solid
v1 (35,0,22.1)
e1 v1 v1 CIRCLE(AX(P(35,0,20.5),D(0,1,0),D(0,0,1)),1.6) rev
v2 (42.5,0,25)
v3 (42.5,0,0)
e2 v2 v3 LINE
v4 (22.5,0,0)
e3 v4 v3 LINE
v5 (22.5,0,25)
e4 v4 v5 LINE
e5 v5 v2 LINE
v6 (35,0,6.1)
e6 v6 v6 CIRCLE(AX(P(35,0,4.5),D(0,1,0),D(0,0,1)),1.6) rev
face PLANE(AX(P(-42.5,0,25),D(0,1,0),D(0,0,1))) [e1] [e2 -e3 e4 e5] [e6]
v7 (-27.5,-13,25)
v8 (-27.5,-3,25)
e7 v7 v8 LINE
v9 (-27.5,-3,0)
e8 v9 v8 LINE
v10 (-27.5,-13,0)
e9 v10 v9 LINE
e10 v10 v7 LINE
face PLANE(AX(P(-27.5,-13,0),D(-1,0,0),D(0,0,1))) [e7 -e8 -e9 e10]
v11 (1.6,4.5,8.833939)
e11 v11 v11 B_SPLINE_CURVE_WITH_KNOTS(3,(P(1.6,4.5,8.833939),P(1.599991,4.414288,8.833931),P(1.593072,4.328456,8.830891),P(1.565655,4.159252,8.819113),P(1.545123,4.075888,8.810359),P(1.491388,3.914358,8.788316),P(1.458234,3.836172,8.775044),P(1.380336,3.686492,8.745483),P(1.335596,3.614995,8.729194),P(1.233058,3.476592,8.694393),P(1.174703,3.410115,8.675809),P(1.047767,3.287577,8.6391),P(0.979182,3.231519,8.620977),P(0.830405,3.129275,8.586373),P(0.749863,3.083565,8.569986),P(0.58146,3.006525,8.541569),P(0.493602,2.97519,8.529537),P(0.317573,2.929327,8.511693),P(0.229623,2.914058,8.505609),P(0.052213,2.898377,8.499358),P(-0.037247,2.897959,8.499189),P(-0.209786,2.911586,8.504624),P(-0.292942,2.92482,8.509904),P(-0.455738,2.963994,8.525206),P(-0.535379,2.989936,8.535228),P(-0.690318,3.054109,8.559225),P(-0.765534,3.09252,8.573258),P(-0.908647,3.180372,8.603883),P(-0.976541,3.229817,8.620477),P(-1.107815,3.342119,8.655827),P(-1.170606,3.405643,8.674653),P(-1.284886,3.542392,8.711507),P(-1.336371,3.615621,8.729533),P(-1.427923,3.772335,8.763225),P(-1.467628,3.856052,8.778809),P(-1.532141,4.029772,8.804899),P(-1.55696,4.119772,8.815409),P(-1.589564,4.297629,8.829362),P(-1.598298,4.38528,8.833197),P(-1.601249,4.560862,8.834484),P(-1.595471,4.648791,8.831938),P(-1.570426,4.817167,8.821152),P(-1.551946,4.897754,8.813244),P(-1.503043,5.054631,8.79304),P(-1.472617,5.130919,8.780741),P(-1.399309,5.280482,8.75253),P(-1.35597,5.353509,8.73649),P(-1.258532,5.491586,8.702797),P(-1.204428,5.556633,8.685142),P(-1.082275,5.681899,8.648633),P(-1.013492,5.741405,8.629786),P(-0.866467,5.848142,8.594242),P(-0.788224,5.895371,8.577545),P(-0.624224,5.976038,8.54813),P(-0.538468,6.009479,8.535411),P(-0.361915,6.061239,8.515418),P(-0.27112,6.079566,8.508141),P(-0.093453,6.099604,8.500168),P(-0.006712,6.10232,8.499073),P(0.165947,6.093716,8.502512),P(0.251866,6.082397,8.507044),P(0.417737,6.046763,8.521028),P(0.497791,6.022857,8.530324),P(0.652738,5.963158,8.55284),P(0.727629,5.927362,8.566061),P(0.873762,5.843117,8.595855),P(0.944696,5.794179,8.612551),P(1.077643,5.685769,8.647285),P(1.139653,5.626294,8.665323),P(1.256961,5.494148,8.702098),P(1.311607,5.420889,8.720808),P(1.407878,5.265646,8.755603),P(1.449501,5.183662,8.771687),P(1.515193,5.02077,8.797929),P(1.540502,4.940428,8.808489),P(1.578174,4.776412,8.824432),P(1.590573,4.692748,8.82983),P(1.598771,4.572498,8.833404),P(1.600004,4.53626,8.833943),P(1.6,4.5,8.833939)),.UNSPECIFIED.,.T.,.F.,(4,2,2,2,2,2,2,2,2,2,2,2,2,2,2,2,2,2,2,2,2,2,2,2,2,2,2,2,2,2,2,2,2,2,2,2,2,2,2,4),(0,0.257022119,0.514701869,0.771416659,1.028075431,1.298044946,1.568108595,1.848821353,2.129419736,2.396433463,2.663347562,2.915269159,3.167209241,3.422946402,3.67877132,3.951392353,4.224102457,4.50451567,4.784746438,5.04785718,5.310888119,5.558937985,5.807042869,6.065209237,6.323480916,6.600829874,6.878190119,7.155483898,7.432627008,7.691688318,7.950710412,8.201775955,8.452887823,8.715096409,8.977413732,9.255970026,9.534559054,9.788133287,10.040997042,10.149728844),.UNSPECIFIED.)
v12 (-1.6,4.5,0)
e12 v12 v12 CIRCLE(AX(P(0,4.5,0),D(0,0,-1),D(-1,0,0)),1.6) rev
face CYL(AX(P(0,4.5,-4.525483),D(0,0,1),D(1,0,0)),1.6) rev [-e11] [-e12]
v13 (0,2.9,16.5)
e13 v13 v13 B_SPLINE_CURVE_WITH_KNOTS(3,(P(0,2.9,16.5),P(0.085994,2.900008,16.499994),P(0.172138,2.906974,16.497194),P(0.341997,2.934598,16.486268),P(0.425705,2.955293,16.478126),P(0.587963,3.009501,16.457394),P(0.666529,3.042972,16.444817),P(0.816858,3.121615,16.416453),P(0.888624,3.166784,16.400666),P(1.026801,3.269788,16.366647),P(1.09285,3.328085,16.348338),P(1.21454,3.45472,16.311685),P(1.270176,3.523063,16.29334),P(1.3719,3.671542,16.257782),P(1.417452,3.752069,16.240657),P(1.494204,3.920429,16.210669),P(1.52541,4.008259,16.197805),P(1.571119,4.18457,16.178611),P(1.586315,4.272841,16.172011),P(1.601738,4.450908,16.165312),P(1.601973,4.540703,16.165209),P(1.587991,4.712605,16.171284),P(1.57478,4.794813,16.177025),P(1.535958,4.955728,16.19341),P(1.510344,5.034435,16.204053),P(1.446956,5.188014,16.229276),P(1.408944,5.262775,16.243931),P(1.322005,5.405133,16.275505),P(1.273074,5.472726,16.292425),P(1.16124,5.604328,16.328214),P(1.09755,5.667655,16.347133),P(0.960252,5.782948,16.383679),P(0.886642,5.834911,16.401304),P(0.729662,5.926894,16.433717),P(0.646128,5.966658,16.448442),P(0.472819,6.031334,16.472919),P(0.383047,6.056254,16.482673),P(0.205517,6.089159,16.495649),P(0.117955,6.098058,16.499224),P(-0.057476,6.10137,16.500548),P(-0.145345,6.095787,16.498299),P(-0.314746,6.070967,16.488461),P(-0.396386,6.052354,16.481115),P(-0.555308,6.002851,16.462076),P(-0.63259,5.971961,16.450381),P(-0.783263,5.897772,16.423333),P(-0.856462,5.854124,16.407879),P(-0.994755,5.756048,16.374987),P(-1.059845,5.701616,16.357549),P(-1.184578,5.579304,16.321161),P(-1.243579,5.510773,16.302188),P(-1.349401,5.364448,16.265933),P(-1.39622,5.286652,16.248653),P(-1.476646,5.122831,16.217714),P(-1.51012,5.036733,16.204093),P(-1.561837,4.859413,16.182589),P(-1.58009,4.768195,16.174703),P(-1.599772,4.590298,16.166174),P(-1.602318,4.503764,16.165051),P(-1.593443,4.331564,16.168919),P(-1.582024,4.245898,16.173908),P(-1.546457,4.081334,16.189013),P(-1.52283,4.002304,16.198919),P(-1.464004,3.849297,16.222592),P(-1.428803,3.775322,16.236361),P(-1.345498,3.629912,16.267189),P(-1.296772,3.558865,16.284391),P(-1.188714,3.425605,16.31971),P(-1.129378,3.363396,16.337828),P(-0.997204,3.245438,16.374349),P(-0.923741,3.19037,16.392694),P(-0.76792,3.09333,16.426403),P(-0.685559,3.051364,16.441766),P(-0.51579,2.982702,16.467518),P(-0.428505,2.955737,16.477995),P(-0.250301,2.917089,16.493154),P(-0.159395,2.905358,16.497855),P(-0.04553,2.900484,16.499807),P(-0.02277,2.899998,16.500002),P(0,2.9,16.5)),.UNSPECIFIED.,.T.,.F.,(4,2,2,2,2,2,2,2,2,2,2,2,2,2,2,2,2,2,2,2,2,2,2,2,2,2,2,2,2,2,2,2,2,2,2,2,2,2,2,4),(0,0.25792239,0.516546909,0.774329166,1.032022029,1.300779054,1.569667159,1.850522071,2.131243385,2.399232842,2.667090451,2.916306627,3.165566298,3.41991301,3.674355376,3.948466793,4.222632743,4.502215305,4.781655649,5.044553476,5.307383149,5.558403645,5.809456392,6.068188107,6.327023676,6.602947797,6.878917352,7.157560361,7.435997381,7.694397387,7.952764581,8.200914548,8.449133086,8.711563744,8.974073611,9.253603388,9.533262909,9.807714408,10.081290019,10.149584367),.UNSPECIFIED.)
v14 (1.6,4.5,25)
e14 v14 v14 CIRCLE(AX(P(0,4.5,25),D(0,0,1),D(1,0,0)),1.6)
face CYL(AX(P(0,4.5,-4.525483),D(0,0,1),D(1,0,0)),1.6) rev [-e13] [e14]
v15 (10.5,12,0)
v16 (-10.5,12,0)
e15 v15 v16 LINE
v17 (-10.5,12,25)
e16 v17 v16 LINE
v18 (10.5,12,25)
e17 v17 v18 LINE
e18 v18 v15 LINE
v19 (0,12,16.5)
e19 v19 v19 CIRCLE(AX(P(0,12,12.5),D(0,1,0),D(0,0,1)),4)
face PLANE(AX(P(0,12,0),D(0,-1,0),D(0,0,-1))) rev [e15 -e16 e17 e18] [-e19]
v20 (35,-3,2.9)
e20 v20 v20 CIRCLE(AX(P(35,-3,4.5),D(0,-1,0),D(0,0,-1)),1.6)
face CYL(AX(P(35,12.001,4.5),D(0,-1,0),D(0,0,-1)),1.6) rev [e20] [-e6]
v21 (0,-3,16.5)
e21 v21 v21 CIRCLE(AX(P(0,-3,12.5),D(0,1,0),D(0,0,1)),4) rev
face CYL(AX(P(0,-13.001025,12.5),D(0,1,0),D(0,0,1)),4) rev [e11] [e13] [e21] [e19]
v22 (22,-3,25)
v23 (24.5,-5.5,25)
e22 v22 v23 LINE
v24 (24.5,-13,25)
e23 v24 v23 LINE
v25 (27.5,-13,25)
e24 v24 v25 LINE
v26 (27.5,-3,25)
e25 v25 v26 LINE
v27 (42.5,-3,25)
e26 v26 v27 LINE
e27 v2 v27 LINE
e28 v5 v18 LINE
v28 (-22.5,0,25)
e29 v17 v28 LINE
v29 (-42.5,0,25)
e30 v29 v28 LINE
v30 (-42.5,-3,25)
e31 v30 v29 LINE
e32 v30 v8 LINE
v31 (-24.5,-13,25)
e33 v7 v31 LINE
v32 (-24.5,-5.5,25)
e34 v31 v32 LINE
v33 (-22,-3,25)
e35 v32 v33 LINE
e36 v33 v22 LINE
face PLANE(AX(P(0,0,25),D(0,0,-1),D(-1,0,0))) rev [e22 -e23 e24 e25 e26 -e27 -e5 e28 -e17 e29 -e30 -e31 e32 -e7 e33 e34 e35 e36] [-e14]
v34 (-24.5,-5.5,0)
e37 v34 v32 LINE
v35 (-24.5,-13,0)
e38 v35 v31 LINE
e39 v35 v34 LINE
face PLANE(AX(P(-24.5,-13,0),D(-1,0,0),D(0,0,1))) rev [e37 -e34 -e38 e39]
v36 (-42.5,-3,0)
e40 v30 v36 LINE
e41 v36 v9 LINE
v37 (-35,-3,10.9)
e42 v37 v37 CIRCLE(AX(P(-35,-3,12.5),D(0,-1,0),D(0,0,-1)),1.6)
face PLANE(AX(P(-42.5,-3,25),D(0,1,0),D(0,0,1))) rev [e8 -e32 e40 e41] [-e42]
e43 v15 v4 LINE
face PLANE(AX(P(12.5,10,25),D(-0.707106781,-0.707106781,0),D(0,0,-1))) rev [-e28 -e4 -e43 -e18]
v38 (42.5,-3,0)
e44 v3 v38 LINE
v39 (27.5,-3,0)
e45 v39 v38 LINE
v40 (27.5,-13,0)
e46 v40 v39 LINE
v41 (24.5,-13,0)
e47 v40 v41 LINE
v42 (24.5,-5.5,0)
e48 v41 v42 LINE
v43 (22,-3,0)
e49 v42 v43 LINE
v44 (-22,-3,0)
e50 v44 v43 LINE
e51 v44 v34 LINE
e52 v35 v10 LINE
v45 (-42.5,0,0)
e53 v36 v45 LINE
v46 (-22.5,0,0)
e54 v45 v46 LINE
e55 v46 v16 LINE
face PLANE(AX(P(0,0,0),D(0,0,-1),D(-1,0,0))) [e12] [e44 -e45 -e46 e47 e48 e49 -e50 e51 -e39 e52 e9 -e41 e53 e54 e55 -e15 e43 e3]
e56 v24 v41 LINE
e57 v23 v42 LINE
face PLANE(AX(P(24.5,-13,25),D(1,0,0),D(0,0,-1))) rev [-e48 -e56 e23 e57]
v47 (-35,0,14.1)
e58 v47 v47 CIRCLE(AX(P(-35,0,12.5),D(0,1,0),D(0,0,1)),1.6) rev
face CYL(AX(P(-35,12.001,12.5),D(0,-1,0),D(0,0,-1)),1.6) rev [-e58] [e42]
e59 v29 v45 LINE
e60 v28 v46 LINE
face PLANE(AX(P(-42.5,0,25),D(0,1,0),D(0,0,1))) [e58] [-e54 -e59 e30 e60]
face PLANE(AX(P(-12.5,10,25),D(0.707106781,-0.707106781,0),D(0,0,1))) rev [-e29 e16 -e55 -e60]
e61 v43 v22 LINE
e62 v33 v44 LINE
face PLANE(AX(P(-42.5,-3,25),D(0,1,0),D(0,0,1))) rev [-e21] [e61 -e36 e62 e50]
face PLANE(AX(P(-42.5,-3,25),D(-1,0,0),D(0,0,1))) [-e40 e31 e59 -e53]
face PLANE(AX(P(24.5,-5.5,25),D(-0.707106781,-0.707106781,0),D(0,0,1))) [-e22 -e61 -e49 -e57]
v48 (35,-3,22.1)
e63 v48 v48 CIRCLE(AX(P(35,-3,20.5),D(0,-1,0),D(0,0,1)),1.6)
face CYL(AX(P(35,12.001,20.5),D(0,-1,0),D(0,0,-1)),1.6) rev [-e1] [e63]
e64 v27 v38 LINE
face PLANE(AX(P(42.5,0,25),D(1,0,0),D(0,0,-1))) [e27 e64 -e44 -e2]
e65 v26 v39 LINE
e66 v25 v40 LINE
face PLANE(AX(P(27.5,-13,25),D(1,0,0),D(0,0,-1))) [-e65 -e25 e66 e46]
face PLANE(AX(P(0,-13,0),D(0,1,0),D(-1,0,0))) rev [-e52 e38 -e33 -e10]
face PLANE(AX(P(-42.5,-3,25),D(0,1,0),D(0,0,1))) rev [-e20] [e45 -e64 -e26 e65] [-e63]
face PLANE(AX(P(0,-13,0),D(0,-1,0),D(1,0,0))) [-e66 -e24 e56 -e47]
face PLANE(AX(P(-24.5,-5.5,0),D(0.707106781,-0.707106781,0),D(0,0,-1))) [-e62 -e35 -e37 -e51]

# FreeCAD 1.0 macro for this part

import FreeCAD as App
import Part
import Sketcher

V = App.Vector


def edges_at(feature, points):
    """Names of the edges that pass closest to the given points."""
    edges = feature.Shape.Edges
    near = lambda p: min(range(len(edges)), key=lambda i: edges[i].distToShape(Part.Vertex(*p))[0])
    return sorted({f"Edge{near(p) + 1}" for p in points})


def add_polygon(sketch, points):
    """Adds a closed chain of lines whose ends are joined by coincident constraints."""
    first, n = sketch.GeometryCount, len(points)
    for a, b in zip(points, points[1:] + points[:1]):
        sketch.addGeometry(Part.LineSegment(App.Vector(*a, 0), App.Vector(*b, 0)), False)
    for i in range(n):
        sketch.addConstraint(Sketcher.Constraint("Coincident", first + i, 2, first + (i + 1) % n, 1))

doc = App.newDocument("Part")
body = doc.addObject("PartDesign::Body", "Body")

sketch1 = body.newObject("Sketcher::SketchObject", "Sketch")
sketch1.AttachmentSupport = (doc.getObject("XY_Plane"), [""])
sketch1.MapMode = "FlatFace"
add_polygon(sketch1, [(-42.5, 0), (-42.5, -3), (42.5, -3), (42.5, 0)])
sketch1.addConstraint(Sketcher.Constraint("Vertical", 0))
sketch1.addConstraint(Sketcher.Constraint("Horizontal", 1))
sketch1.addConstraint(Sketcher.Constraint("Vertical", 2))
sketch1.addConstraint(Sketcher.Constraint("Horizontal", 3))
sketch1.addConstraint(Sketcher.Constraint("Symmetric", 2, 2, 3, 2, -1, 1))
sketch1.addConstraint(Sketcher.Constraint("DistanceX", 1, 1, 1, 2, 85.0))
sketch1.addConstraint(Sketcher.Constraint("DistanceY", 0, 2, 0, 1, 3.0))
pad1 = body.newObject("PartDesign::Pad", "Pad")
pad1.Profile = sketch1
pad1.Length = 25

sketch2 = body.newObject("Sketcher::SketchObject", "Sketch001")
sketch2.AttachmentSupport = (doc.getObject("XZ_Plane"), [""])
sketch2.MapMode = "FlatFace"
sketch2.AttachmentOffset = App.Placement(V(0, 0, 3), App.Rotation())
add_polygon(sketch2, [(-27.5, 25), (-27.5, 0), (-24.5, 0), (-24.5, 25)])
sketch2.addConstraint(Sketcher.Constraint("Vertical", 0))
sketch2.addConstraint(Sketcher.Constraint("Horizontal", 1))
sketch2.addConstraint(Sketcher.Constraint("Vertical", 2))
sketch2.addConstraint(Sketcher.Constraint("Horizontal", 3))
sketch2.addConstraint(Sketcher.Constraint("PointOnObject", 0, 2, -1))
sketch2.addConstraint(Sketcher.Constraint("DistanceX", 1, 1, 1, 2, 3.0))
sketch2.addConstraint(Sketcher.Constraint("DistanceY", 0, 2, 0, 1, 25.0))
sketch2.addConstraint(Sketcher.Constraint("DistanceX", 0, 2, -1, 1, 27.5))
pad2 = body.newObject("PartDesign::Pad", "Pad001")
pad2.Profile = sketch2
pad2.Length = 10

sketch3 = body.newObject("Sketcher::SketchObject", "Sketch002")
sketch3.AttachmentSupport = (doc.getObject("XZ_Plane"), [""])
sketch3.MapMode = "FlatFace"
sketch3.AttachmentOffset = App.Placement(V(0, 0, 3), App.Rotation())
add_polygon(sketch3, [(24.5, 25), (24.5, 0), (27.5, 0), (27.5, 25)])
sketch3.addConstraint(Sketcher.Constraint("Vertical", 0))
sketch3.addConstraint(Sketcher.Constraint("Horizontal", 1))
sketch3.addConstraint(Sketcher.Constraint("Vertical", 2))
sketch3.addConstraint(Sketcher.Constraint("Horizontal", 3))
sketch3.addConstraint(Sketcher.Constraint("PointOnObject", 0, 2, -1))
sketch3.addConstraint(Sketcher.Constraint("DistanceX", 1, 1, 1, 2, 3.0))
sketch3.addConstraint(Sketcher.Constraint("DistanceY", 0, 2, 0, 1, 25.0))
sketch3.addConstraint(Sketcher.Constraint("DistanceX", -1, 1, 0, 2, 24.5))
pad3 = body.newObject("PartDesign::Pad", "Pad002")
pad3.Profile = sketch3
pad3.Length = 10

sketch4 = body.newObject("Sketcher::SketchObject", "Sketch003")
sketch4.AttachmentSupport = (doc.getObject("XZ_Plane"), [""])
sketch4.MapMode = "FlatFace"
add_polygon(sketch4, [(-12.5, 0), (-12.5, 25), (12.5, 25), (12.5, 0)])
sketch4.addConstraint(Sketcher.Constraint("Vertical", 0))
sketch4.addConstraint(Sketcher.Constraint("Horizontal", 1))
sketch4.addConstraint(Sketcher.Constraint("Vertical", 2))
sketch4.addConstraint(Sketcher.Constraint("Horizontal", 3))
sketch4.addConstraint(Sketcher.Constraint("Symmetric", 2, 2, 3, 2, -1, 1))
sketch4.addConstraint(Sketcher.Constraint("Equal", 3, 0))
sketch4.addConstraint(Sketcher.Constraint("DistanceX", 1, 1, 1, 2, 25.0))
pad4 = body.newObject("PartDesign::Pad", "Pad003")
pad4.Profile = sketch4
pad4.Length = 12
pad4.Reversed = True

sketch5 = body.newObject("Sketcher::SketchObject", "Sketch004")
sketch5.AttachmentSupport = (doc.getObject("XZ_Plane"), [""])
sketch5.MapMode = "FlatFace"
sketch5.AttachmentOffset = App.Placement(V(0, 0, -12), App.Rotation())
sketch5.addGeometry(Part.Circle(V(0, 12.5, 0), V(0, 0, 1), 4), False)
sketch5.addConstraint(Sketcher.Constraint("PointOnObject", 0, 3, -2))
sketch5.addConstraint(Sketcher.Constraint("Diameter", 0, 8.0))
sketch5.addConstraint(Sketcher.Constraint("DistanceY", -1, 1, 0, 3, 12.5))
pocket1 = body.newObject("PartDesign::Pocket", "Pocket")
pocket1.Profile = sketch5
pocket1.Type = "UpToFirst"
pocket1.Reversed = True
doc.recompute()

chamfer = body.newObject("PartDesign::Chamfer", "Chamfer")
chamfer.Base = (pocket1, edges_at(pocket1, [(12.5, 0, 12.5)]))
chamfer.Size = 10
doc.recompute()

chamfer2 = body.newObject("PartDesign::Chamfer", "Chamfer001")
chamfer2.Base = (chamfer, edges_at(chamfer, [(-12.5, 0, 12.5)]))
chamfer2.Size = 10

sketch6 = body.newObject("Sketcher::SketchObject", "Sketch005")
sketch6.AttachmentSupport = (doc.getObject("XY_Plane"), [""])
sketch6.MapMode = "FlatFace"
add_polygon(sketch6, [(12.5, 10), (10.5, 12), (12.5, 12)])
sketch6.addConstraint(Sketcher.Constraint("Horizontal", 1))
sketch6.addConstraint(Sketcher.Constraint("Vertical", 2))
sketch6.addConstraint(Sketcher.Constraint("Equal", 1, 2))
sketch6.addConstraint(Sketcher.Constraint("DistanceX", 1, 1, 1, 2, 2.0))
sketch6.addConstraint(Sketcher.Constraint("DistanceY", -1, 1, 0, 2, 12.0))
sketch6.addConstraint(Sketcher.Constraint("DistanceX", -1, 1, 0, 2, 10.5))
pocket2 = body.newObject("PartDesign::Pocket", "Pocket001")
pocket2.Profile = sketch6
pocket2.Type = "UpToFirst"
pocket2.Reversed = True

sketch7 = body.newObject("Sketcher::SketchObject", "Sketch006")
sketch7.AttachmentSupport = (doc.getObject("XY_Plane"), [""])
sketch7.MapMode = "FlatFace"
add_polygon(sketch7, [(-10.5, 12), (-12.5, 10), (-12.5, 12)])
sketch7.addConstraint(Sketcher.Constraint("Vertical", 1))
sketch7.addConstraint(Sketcher.Constraint("Horizontal", 2))
sketch7.addConstraint(Sketcher.Constraint("Equal", 2, 1))
sketch7.addConstraint(Sketcher.Constraint("DistanceX", 2, 1, 2, 2, 2.0))
sketch7.addConstraint(Sketcher.Constraint("DistanceY", -1, 1, 0, 2, 10.0))
sketch7.addConstraint(Sketcher.Constraint("DistanceX", 0, 2, -1, 1, 12.5))
pocket3 = body.newObject("PartDesign::Pocket", "Pocket002")
pocket3.Profile = sketch7
pocket3.Type = "UpToFirst"
pocket3.Reversed = True

sketch8 = body.newObject("Sketcher::SketchObject", "Sketch007")
sketch8.AttachmentSupport = (doc.getObject("XZ_Plane"), [""])
sketch8.MapMode = "FlatFace"
sketch8.AttachmentOffset = App.Placement(V(0, 0, 3), App.Rotation())
sketch8.addGeometry(Part.Circle(V(35, 4.5, 0), V(0, 0, 1), 1.6), False)
sketch8.addConstraint(Sketcher.Constraint("Diameter", 0, 3.2))
sketch8.addConstraint(Sketcher.Constraint("DistanceX", -1, 1, 0, 3, 35.0))
sketch8.addConstraint(Sketcher.Constraint("DistanceY", -1, 1, 0, 3, 4.5))
pocket4 = body.newObject("PartDesign::Pocket", "Pocket003")
pocket4.Profile = sketch8
pocket4.Type = "UpToFirst"

sketch9 = body.newObject("Sketcher::SketchObject", "Sketch008")
sketch9.AttachmentSupport = (doc.getObject("XZ_Plane"), [""])
sketch9.MapMode = "FlatFace"
sketch9.AttachmentOffset = App.Placement(V(0, 0, 3), App.Rotation())
sketch9.addGeometry(Part.Circle(V(35, 20.5, 0), V(0, 0, 1), 1.6), False)
sketch9.addConstraint(Sketcher.Constraint("Diameter", 0, 3.2))
sketch9.addConstraint(Sketcher.Constraint("DistanceX", -1, 1, 0, 3, 35.0))
sketch9.addConstraint(Sketcher.Constraint("DistanceY", -1, 1, 0, 3, 20.5))
pocket5 = body.newObject("PartDesign::Pocket", "Pocket004")
pocket5.Profile = sketch9
pocket5.Type = "UpToFirst"

sketch10 = body.newObject("Sketcher::SketchObject", "Sketch009")
sketch10.AttachmentSupport = (doc.getObject("XZ_Plane"), [""])
sketch10.MapMode = "FlatFace"
sketch10.AttachmentOffset = App.Placement(V(0, 0, 3), App.Rotation())
sketch10.addGeometry(Part.Circle(V(-35, 12.5, 0), V(0, 0, 1), 1.6), False)
sketch10.addConstraint(Sketcher.Constraint("Diameter", 0, 3.2))
sketch10.addConstraint(Sketcher.Constraint("DistanceX", 0, 3, -1, 1, 35.0))
sketch10.addConstraint(Sketcher.Constraint("DistanceY", -1, 1, 0, 3, 12.5))
pocket6 = body.newObject("PartDesign::Pocket", "Pocket005")
pocket6.Profile = sketch10
pocket6.Type = "UpToFirst"
doc.recompute()

chamfer3 = body.newObject("PartDesign::Chamfer", "Chamfer002")
chamfer3.Base = (pocket6, edges_at(pocket6, [(24.5, -3, 12.5)]))
chamfer3.Size = 2.5
doc.recompute()

chamfer4 = body.newObject("PartDesign::Chamfer", "Chamfer003")
chamfer4.Base = (chamfer3, edges_at(chamfer3, [(-24.5, -3, 12.5)]))
chamfer4.Size = 2.5

sketch11 = body.newObject("Sketcher::SketchObject", "Sketch010")
sketch11.AttachmentSupport = (doc.getObject("XY_Plane"), [""])
sketch11.MapMode = "FlatFace"
sketch11.AttachmentOffset = App.Placement(V(0, 0, 25), App.Rotation())
sketch11.addGeometry(Part.Circle(V(0, 4.5, 0), V(0, 0, 1), 1.6), False)
sketch11.addConstraint(Sketcher.Constraint("PointOnObject", 0, 3, -2))
sketch11.addConstraint(Sketcher.Constraint("Diameter", 0, 3.2))
sketch11.addConstraint(Sketcher.Constraint("DistanceY", -1, 1, 0, 3, 4.5))
pocket7 = body.newObject("PartDesign::Pocket", "Pocket006")
pocket7.Profile = sketch11
pocket7.Length = 25

doc.recompute()
